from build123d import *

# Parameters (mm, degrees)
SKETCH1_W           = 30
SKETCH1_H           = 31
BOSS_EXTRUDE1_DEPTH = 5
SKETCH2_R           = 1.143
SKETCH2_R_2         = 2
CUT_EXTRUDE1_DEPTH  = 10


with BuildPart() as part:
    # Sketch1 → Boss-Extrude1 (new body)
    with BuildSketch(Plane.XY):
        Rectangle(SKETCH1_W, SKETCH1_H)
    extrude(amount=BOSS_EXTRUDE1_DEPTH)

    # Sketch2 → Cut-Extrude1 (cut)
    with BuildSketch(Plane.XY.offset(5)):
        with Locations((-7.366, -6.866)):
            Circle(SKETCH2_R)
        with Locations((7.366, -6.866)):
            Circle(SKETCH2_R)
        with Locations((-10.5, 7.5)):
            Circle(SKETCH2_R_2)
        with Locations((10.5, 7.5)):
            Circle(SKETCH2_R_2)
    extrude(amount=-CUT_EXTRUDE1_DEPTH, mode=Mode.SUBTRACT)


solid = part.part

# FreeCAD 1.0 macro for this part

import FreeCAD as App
import Part
import Sketcher
Q = App.Units.Quantity


def add_polygon(sketch, points):
    """Adds a closed chain of lines whose ends are joined by coincident constraints."""
    first, n = sketch.GeometryCount, len(points)
    for a, b in zip(points, points[1:] + points[:1]):
        sketch.addGeometry(Part.LineSegment(App.Vector(*a, 0), App.Vector(*b, 0)), False)
    for i in range(n):
        sketch.addConstraint(Sketcher.Constraint("Coincident", first + i, 2, first + (i + 1) % n, 1))

doc = App.newDocument("Part")
params = doc.addObject("Spreadsheet::Sheet", "Params")
for row, (alias, value) in enumerate([
    ("sketch1_width", "30 mm"),
    ("sketch1_height", "31 mm"),
    ("pad1_length", "5 mm"),
    ("sketch2_diameter", "4 mm"),
    ("pocket1_length", "10 mm"),
], start=1):
    params.set(f"A{row}", alias)
    params.set(f"B{row}", "=" + value)
    params.setAlias(f"B{row}", alias)

body = doc.addObject("PartDesign::Body", "Body")

sketch1 = body.newObject("Sketcher::SketchObject", "Sketch")
sketch1.AttachmentSupport = (doc.getObject("XY_Plane"), [""])
sketch1.MapMode = "FlatFace"
add_polygon(sketch1, [(-15, 16), (-15, -16), (15, -16), (15, 16)])
sketch1.addConstraint(Sketcher.Constraint("Vertical", 0))
sketch1.addConstraint(Sketcher.Constraint("Horizontal", 1))
sketch1.addConstraint(Sketcher.Constraint("Vertical", 2))
sketch1.addConstraint(Sketcher.Constraint("Horizontal", 3))
sketch1.addConstraint(Sketcher.Constraint("Symmetric", 0, 2, 2, 2, -1, 1))
sketch1.addConstraint(Sketcher.Constraint("DistanceX", 1, 1, 1, 2, Q("30 mm")))
sketch1.addConstraint(Sketcher.Constraint("DistanceY", 0, 2, 0, 1, Q("31 mm")))
sketch1.setExpression("Constraints[9]", "Params.sketch1_width")
sketch1.setExpression("Constraints[10]", "Params.sketch1_height")
pad1 = body.newObject("PartDesign::Pad", "Pad")
pad1.Profile = sketch1
pad1.setExpression("Length", "Params.pad1_length")

sketch2 = body.newObject("Sketcher::SketchObject", "Sketch001")
sketch2.AttachmentSupport = (doc.getObject("XY_Plane"), [""])
sketch2.MapMode = "FlatFace"
sketch2.AttachmentOffset = App.Placement(App.Vector(0, 0, 5), App.Rotation())
sketch2.addGeometry(Part.Circle(App.Vector(-7.4, -6.9, 0), App.Vector(0, 0, 1), 1.1), False)
sketch2.addGeometry(Part.Circle(App.Vector(7.4, -6.9, 0), App.Vector(0, 0, 1), 1.1), False)
sketch2.addGeometry(Part.Circle(App.Vector(-10.5, 7.5, 0), App.Vector(0, 0, 1), 2), False)
sketch2.addGeometry(Part.Circle(App.Vector(10.5, 7.5, 0), App.Vector(0, 0, 1), 2), False)
sketch2.addConstraint(Sketcher.Constraint("Equal", 0, 1))
sketch2.addConstraint(Sketcher.Constraint("Equal", 2, 3))
sketch2.addConstraint(Sketcher.Constraint("Symmetric", 0, 3, 1, 3, -2))
sketch2.addConstraint(Sketcher.Constraint("Symmetric", 2, 3, 3, 3, -2))
sketch2.addConstraint(Sketcher.Constraint("Diameter", 2, Q("4 mm")))
sketch2.addConstraint(Sketcher.Constraint("Diameter", 0, Q("2.286 mm")))
sketch2.addConstraint(Sketcher.Constraint("DistanceX", 2, 3, 3, 3, Q("21 mm")))
sketch2.addConstraint(Sketcher.Constraint("DistanceY", -1, 1, 2, 3, Q("7.5 mm")))
sketch2.addConstraint(Sketcher.Constraint("DistanceX", 0, 3, -1, 1, Q("7.366 mm")))
sketch2.addConstraint(Sketcher.Constraint("DistanceY", 0, 3, -1, 1, Q("6.866 mm")))
sketch2.setExpression("Constraints[4]", "Params.sketch2_diameter")
pocket1 = body.newObject("PartDesign::Pocket", "Pocket")
pocket1.Profile = sketch2
pocket1.setExpression("Length", "Params.pocket1_length")

doc.recompute()
